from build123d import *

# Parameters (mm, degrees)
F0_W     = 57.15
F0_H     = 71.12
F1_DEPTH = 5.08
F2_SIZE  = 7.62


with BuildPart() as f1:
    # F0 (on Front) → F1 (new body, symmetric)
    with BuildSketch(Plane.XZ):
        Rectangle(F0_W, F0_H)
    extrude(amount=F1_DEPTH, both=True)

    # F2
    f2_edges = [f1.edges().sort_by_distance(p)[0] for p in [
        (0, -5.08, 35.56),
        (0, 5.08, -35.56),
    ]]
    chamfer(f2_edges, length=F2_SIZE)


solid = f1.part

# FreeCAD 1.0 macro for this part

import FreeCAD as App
import Part
import Sketcher
from FreeCAD import Vector
Q = App.Units.Quantity


def edges_at(feature, points):
    """Names of the edges that pass closest to the given points."""
    edges = feature.Shape.Edges
    near = lambda p: min(range(len(edges)), key=lambda i: edges[i].distToShape(Part.Vertex(*p))[0])
    return sorted({f"Edge{near(p) + 1}" for p in points})


def add_polygon(sketch, points):
    """Adds a closed chain of lines whose ends are joined by coincident constraints."""
    first, n = sketch.GeometryCount, len(points)
    for a, b in zip(points, points[1:] + points[:1]):
        sketch.addGeometry(Part.LineSegment(App.Vector(*a, 0), App.Vector(*b, 0)), False)
    for i in range(n):
        sketch.addConstraint(Sketcher.Constraint("Coincident", first + i, 2, first + (i + 1) % n, 1))

doc = App.newDocument("Part")
body = doc.addObject("PartDesign::Body", "Body")

# Sketch on XZ plane
sketch1 = body.newObject("Sketcher::SketchObject", "Sketch")
sketch1.AttachmentSupport = (doc.getObject("XZ_Plane"), [""])
sketch1.MapMode = "FlatFace"
add_polygon(sketch1, [(-29, 36), (-29, -36), (29, -36), (29, 36)])  # lines 0-3
sketch1.addConstraint([
    Sketcher.Constraint("Vertical", 0),
    Sketcher.Constraint("Horizontal", 1),
    Sketcher.Constraint("Vertical", 2),
    Sketcher.Constraint("Horizontal", 3),
    Sketcher.Constraint("Symmetric", 0, 2, 2, 2, -1, 1),
    Sketcher.Constraint("DistanceY", 0, 2, 0, 1, Q("2.8 in")),
    Sketcher.Constraint("DistanceX", 1, 1, 1, 2, Q("2.25 in")),
])
pad1 = body.newObject("PartDesign::Pad", "Pad")
pad1.Profile = sketch1
pad1.Length = Q("0.4 in")
pad1.Midplane = True
doc.recompute()

chamfer = body.newObject("PartDesign::Chamfer", "Chamfer")
chamfer.Base = (pad1, edges_at(pad1, [(0, -5.08, 35.56), (0, 5.08, -35.56)]))
chamfer.Size = Q("0.3 in")

doc.recompute()
